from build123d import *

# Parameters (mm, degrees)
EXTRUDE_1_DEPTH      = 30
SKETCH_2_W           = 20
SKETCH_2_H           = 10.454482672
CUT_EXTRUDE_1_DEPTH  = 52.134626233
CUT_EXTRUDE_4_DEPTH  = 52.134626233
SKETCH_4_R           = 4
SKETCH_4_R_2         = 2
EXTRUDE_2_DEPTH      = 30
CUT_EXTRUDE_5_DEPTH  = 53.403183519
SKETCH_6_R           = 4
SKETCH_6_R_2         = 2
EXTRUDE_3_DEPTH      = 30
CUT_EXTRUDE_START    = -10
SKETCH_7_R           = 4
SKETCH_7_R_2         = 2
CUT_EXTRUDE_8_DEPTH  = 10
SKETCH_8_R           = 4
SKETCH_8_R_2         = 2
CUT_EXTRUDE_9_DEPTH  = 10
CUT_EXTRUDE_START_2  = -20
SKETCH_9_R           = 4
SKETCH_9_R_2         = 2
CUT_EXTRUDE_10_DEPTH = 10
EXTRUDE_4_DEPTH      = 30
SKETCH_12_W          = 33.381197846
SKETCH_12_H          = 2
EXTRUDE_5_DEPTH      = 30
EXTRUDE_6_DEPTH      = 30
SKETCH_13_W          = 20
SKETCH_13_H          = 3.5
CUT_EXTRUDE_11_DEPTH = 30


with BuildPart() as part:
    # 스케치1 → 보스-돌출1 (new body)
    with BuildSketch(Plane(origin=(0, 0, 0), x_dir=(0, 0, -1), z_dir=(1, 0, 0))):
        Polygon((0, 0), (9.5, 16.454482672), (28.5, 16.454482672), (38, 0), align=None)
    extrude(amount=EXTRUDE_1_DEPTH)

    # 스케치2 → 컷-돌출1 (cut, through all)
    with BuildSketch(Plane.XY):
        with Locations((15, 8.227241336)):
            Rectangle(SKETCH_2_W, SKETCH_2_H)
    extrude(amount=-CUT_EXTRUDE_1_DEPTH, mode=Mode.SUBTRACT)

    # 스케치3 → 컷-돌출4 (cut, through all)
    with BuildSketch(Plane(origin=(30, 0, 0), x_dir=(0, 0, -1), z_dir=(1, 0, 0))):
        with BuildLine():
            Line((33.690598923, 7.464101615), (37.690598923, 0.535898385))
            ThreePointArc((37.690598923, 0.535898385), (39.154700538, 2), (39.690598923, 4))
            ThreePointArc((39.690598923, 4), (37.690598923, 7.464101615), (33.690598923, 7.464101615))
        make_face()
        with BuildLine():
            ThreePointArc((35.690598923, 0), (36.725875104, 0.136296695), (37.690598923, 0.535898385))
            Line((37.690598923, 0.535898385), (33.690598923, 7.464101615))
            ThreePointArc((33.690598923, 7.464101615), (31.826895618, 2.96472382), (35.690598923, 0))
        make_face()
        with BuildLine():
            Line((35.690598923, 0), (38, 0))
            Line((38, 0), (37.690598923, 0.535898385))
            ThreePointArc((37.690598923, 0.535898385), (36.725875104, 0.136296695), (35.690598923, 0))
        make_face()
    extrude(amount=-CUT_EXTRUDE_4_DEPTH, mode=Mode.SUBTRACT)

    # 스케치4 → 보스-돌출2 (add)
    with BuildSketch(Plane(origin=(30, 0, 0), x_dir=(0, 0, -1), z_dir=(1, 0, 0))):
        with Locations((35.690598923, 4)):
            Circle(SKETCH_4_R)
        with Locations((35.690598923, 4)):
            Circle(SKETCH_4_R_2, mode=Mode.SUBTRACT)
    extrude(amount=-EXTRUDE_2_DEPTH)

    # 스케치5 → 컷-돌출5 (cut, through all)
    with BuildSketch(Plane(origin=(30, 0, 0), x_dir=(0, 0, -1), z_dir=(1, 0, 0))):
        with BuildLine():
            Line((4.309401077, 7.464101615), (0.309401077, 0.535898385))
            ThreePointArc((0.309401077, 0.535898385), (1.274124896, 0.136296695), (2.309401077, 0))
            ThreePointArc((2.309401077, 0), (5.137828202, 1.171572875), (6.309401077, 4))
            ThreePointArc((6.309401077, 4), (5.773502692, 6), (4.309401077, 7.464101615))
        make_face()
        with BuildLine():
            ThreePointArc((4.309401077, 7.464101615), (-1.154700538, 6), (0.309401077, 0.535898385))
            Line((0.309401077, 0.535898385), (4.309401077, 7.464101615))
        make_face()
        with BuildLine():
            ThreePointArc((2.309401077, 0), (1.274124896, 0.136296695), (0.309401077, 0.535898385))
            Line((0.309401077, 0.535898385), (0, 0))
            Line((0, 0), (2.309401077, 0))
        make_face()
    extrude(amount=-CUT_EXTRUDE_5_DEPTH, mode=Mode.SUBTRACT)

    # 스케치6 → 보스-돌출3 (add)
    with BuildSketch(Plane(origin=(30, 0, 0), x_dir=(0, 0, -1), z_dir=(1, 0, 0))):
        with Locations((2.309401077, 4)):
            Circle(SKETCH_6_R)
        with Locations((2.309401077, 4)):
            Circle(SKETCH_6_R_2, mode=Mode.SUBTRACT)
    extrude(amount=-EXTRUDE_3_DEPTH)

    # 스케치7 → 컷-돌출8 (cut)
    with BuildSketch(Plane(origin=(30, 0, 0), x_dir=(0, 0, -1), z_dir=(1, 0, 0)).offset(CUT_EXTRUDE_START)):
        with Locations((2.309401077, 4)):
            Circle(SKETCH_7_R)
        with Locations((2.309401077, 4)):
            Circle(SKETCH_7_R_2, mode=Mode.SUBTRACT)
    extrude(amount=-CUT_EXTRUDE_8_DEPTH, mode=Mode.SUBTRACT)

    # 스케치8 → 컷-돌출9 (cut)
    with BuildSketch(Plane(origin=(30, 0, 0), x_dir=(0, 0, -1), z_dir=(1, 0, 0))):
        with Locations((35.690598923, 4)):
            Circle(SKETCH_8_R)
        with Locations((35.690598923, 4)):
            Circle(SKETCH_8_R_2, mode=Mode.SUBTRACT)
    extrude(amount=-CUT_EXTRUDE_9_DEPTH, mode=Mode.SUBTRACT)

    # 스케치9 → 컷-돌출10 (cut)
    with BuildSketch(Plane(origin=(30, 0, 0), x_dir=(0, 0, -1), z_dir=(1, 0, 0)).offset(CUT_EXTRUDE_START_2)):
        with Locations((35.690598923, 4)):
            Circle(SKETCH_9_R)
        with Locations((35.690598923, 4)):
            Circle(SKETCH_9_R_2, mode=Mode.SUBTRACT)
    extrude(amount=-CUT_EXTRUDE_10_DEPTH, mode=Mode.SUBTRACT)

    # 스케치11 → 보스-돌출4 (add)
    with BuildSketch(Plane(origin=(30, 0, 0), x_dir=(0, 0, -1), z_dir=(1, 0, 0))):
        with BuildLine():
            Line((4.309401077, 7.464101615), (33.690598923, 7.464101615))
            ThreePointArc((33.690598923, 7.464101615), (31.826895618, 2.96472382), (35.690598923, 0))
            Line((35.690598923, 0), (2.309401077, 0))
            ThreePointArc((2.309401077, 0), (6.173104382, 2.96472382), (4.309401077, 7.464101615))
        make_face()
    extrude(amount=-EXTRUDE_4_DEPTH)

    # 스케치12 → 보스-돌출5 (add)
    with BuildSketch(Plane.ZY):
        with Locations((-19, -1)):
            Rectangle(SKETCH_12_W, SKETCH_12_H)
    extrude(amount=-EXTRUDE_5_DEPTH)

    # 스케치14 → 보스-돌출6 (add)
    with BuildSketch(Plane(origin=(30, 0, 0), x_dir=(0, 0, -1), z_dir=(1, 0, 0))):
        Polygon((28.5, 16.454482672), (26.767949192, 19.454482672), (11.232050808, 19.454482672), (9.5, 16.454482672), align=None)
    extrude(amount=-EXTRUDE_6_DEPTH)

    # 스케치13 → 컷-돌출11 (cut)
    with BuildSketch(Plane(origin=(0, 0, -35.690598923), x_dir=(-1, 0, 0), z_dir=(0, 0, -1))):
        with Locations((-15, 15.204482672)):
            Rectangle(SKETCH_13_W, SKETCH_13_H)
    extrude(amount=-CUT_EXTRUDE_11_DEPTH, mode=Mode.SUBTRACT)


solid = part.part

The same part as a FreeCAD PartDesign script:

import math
import FreeCAD as App
import Part
import Sketcher

V = App.Vector
Q = App.Units.Quantity

doc = App.newDocument("Part")
params = doc.addObject("Spreadsheet::Sheet", "Params")
for row, (alias, value) in enumerate([
    ("sketch1_height", "38 mm"),
    ("sketch1_height2", "19 mm"),
    ("pad1_length", "30 mm"),
    ("sketch2_width", "20 mm"),
    ("sketch3_radius", "4 mm"),
    ("sketch4_diameter", "8 mm"),
    ("sketch4_diameter2", "4 mm"),
    ("pad2_length", "30 mm"),
    ("sketch5_radius", "4 mm"),
    ("sketch6_diameter", "8 mm"),
    ("sketch6_diameter2", "4 mm"),
    ("pad3_length", "30 mm"),
    ("sketch7_diameter", "8 mm"),
    ("sketch7_diameter2", "4 mm"),
    ("pocket4_length", "10 mm"),
    ("sketch8_diameter", "8 mm"),
    ("sketch8_diameter2", "4 mm"),
    ("pocket5_length", "10 mm"),
    ("sketch9_diameter", "8 mm"),
    ("sketch9_diameter2", "4 mm"),
    ("pocket6_length", "10 mm"),
    ("sketch10_radius", "4 mm"),
    ("pad4_length", "30 mm"),
    ("sketch11_width", "2 mm"),
    ("pad5_length", "30 mm"),
    ("sketch12_height", "19 mm"),
    ("pad6_length", "30 mm"),
    ("sketch13_width", "20 mm"),
    ("sketch13_height", "3.5 mm"),
    ("pocket7_length", "30 mm"),
], start=1):
    params.set(f"A{row}", alias)
    params.set(f"B{row}", "=" + value)
    params.setAlias(f"B{row}", alias)

body = doc.addObject("PartDesign::Body", "Body")

# Sketch on YZ plane
sketch1 = body.newObject("Sketcher::SketchObject", "Sketch")
sketch1.AttachmentSupport = (doc.getObject("YZ_Plane"), [""])
sketch1.MapMode = "FlatFace"
sketch1.addGeometry(Part.LineSegment(V(16, -10, 0), V(0, 0, 0)), False)
sketch1.addGeometry(Part.LineSegment(V(0, 0, 0), V(0, -38, 0)), False)
sketch1.addGeometry(Part.LineSegment(V(0, -38, 0), V(16, -28, 0)), False)
sketch1.addGeometry(Part.LineSegment(V(16, -28, 0), V(16, -10, 0)), False)
sketch1.addConstraint(Sketcher.Constraint("Coincident", 0, 2, 1, 1))
sketch1.addConstraint(Sketcher.Constraint("Coincident", 1, 2, 2, 1))
sketch1.addConstraint(Sketcher.Constraint("Coincident", 2, 2, 3, 1))
sketch1.addConstraint(Sketcher.Constraint("Coincident", 3, 2, 0, 1))
sketch1.addConstraint(Sketcher.Constraint("Vertical", 1))
sketch1.addConstraint(Sketcher.Constraint("Vertical", 3))
sketch1.addConstraint(Sketcher.Constraint("Coincident", 0, 2, -1, 1))
sketch1.addConstraint(Sketcher.Constraint("Equal", 0, 2))
sketch1.addConstraint(Sketcher.Constraint("DistanceY", 1, 2, 1, 1, Q("38 mm")))
sketch1.addConstraint(Sketcher.Constraint("DistanceY", 3, 1, 3, 2, Q("19 mm")))
sketch1.addConstraint(Sketcher.Constraint("Angle", 0, Q("150 deg")))
sketch1.setExpression("Constraints[8]", "Params.sketch1_height")
sketch1.setExpression("Constraints[9]", "Params.sketch1_height2")
pad1 = body.newObject("PartDesign::Pad", "Pad")
pad1.Profile = sketch1
pad1.setExpression("Length", "Params.pad1_length")

# Sketch on XY plane
sketch2 = body.newObject("Sketcher::SketchObject", "Sketch001")
sketch2.AttachmentSupport = (doc.getObject("XY_Plane"), [""])
sketch2.MapMode = "FlatFace"
sketch2.addGeometry(Part.LineSegment(V(5, 13, 0), V(5, 3, 0)), False)
sketch2.addGeometry(Part.LineSegment(V(5, 3, 0), V(25, 3, 0)), False)
sketch2.addGeometry(Part.LineSegment(V(25, 3, 0), V(25, 13, 0)), False)
sketch2.addGeometry(Part.LineSegment(V(25, 13, 0), V(5, 13, 0)), False)
sketch2.addConstraint(Sketcher.Constraint("Coincident", 0, 2, 1, 1))
sketch2.addConstraint(Sketcher.Constraint("Coincident", 1, 2, 2, 1))
sketch2.addConstraint(Sketcher.Constraint("Coincident", 2, 2, 3, 1))
sketch2.addConstraint(Sketcher.Constraint("Coincident", 3, 2, 0, 1))
sketch2.addConstraint(Sketcher.Constraint("Vertical", 0))
sketch2.addConstraint(Sketcher.Constraint("Horizontal", 1))
sketch2.addConstraint(Sketcher.Constraint("Vertical", 2))
sketch2.addConstraint(Sketcher.Constraint("Horizontal", 3))
sketch2.addConstraint(Sketcher.Constraint("DistanceX", 1, 1, 1, 2, Q("20 mm")))
sketch2.addConstraint(Sketcher.Constraint("DistanceX", -1, 1, 0, 2, Q("5 mm")))
sketch2.addConstraint(Sketcher.Constraint("DistanceY", -1, 1, 0, 2, Q("3 mm")))
sketch2.addConstraint(Sketcher.Constraint("DistanceY", 0, 2, 0, 1, Q("10.454483 mm")))
sketch2.setExpression("Constraints[8]", "Params.sketch2_width")
pocket1 = body.newObject("PartDesign::Pocket", "Pocket")
pocket1.Profile = sketch2
pocket1.Type = "ThroughAll"

# Sketch on YZ plane
sketch3 = body.newObject("Sketcher::SketchObject", "Sketch002")
sketch3.AttachmentSupport = (doc.getObject("YZ_Plane"), [""])
sketch3.MapMode = "FlatFace"
sketch3.AttachmentOffset = App.Placement(V(0, 0, 30), App.Rotation())
sketch3.addGeometry(Part.ArcOfCircle(Part.Circle(V(4, -35.7, 0), V(0, 0, 1), 4), math.radians(-150), math.radians(-90)), False)
sketch3.addGeometry(Part.ArcOfCircle(Part.Circle(V(4, -35.7, 0), V(0, 0, 1), 4), math.radians(-90), math.radians(30)), False)
sketch3.addGeometry(Part.ArcOfCircle(Part.Circle(V(4, -35.7, 0), V(0, 0, 1), 4), math.radians(30), math.radians(180)), False)
sketch3.addGeometry(Part.LineSegment(V(0, -35.7, 0), V(0, -38, 0)), False)
sketch3.addGeometry(Part.LineSegment(V(0, -38, 0), V(0.5, -37.7, 0)), False)
sketch3.addConstraint(Sketcher.Constraint("Tangent", 0, 2, 1, 1))
sketch3.addConstraint(Sketcher.Constraint("Tangent", 1, 2, 2, 1))
sketch3.addConstraint(Sketcher.Constraint("Tangent", 2, 2, 3, 1))
sketch3.addConstraint(Sketcher.Constraint("Coincident", 3, 2, 4, 1))
sketch3.addConstraint(Sketcher.Constraint("Coincident", 4, 2, 0, 1))
sketch3.addConstraint(Sketcher.Constraint("Vertical", 3))
sketch3.addConstraint(Sketcher.Constraint("Coincident", 2, 3, 0, 3))
sketch3.addConstraint(Sketcher.Constraint("PointOnObject", 2, 2, -2))
sketch3.addConstraint(Sketcher.Constraint("Vertical", 2, 3, 0, 2))
sketch3.addConstraint(Sketcher.Constraint("Radius", 0, Q("4 mm")))
sketch3.addConstraint(Sketcher.Constraint("Angle", 4, Q("30 deg")))
sketch3.addConstraint(Sketcher.Constraint("DistanceY", 3, 2, -1, 1, Q("38 mm")))
sketch3.addConstraint(Sketcher.Constraint("DistanceY", 0, 3, 1, 2, Q("2 mm")))
sketch3.addConstraint(Sketcher.Constraint("DistanceY", 4, 2, 2, 2, Q("2 mm")))
sketch3.setExpression("Constraints[9]", "Params.sketch3_radius")
pocket2 = body.newObject("PartDesign::Pocket", "Pocket001")
pocket2.Profile = sketch3
pocket2.Type = "ThroughAll"

# Sketch on YZ plane
sketch4 = body.newObject("Sketcher::SketchObject", "Sketch003")
sketch4.AttachmentSupport = (doc.getObject("YZ_Plane"), [""])
sketch4.MapMode = "FlatFace"
sketch4.AttachmentOffset = App.Placement(V(0, 0, 30), App.Rotation())
sketch4.addGeometry(Part.Circle(V(4, -35.7, 0), V(0, 0, 1), 4), False)
sketch4.addGeometry(Part.Circle(V(4, -35.7, 0), V(0, 0, 1), 2), False)
sketch4.addConstraint(Sketcher.Constraint("Coincident", 1, 3, 0, 3))
sketch4.addConstraint(Sketcher.Constraint("Diameter", 0, Q("8 mm")))
sketch4.addConstraint(Sketcher.Constraint("Diameter", 1, Q("4 mm")))
sketch4.addConstraint(Sketcher.Constraint("DistanceX", -1, 1, 0, 3, Q("4 mm")))
sketch4.addConstraint(Sketcher.Constraint("DistanceY", 0, 3, -1, 1, Q("35.690599 mm")))
sketch4.setExpression("Constraints[1]", "Params.sketch4_diameter")
sketch4.setExpression("Constraints[2]", "Params.sketch4_diameter2")
pad2 = body.newObject("PartDesign::Pad", "Pad001")
pad2.Profile = sketch4
pad2.setExpression("Length", "Params.pad2_length")
pad2.Reversed = True

# Sketch on YZ plane
sketch5 = body.newObject("Sketcher::SketchObject", "Sketch004")
sketch5.AttachmentSupport = (doc.getObject("YZ_Plane"), [""])
sketch5.MapMode = "FlatFace"
sketch5.AttachmentOffset = App.Placement(V(0, 0, 30), App.Rotation())
sketch5.addGeometry(Part.ArcOfCircle(Part.Circle(V(4, -2.3, 0), V(0, 0, 1), 4), math.radians(180), math.radians(270)), False)
sketch5.addGeometry(Part.ArcOfCircle(Part.Circle(V(4, -2.3, 0), V(0, 0, 1), 4), math.radians(-90), math.radians(-30)), False)
sketch5.addGeometry(Part.ArcOfCircle(Part.Circle(V(4, -2.3, 0), V(0, 0, 1), 4), math.radians(-30), math.radians(150)), False)
sketch5.addGeometry(Part.LineSegment(V(0.5, -0.3, 0), V(0, 0, 0)), False)
sketch5.addGeometry(Part.LineSegment(V(0, 0, 0), V(0, -2.3, 0)), False)
sketch5.addConstraint(Sketcher.Constraint("Tangent", 0, 2, 1, 1))
sketch5.addConstraint(Sketcher.Constraint("Tangent", 1, 2, 2, 1))
sketch5.addConstraint(Sketcher.Constraint("Coincident", 2, 2, 3, 1))
sketch5.addConstraint(Sketcher.Constraint("Coincident", 3, 2, 4, 1))
sketch5.addConstraint(Sketcher.Constraint("Tangent", 4, 2, 0, 1))
sketch5.addConstraint(Sketcher.Constraint("Vertical", 4))
sketch5.addConstraint(Sketcher.Constraint("Coincident", 3, 2, -1, 1))
sketch5.addConstraint(Sketcher.Constraint("Coincident", 2, 3, 0, 3))
sketch5.addConstraint(Sketcher.Constraint("Vertical", 2, 3, 0, 2))
sketch5.addConstraint(Sketcher.Constraint("Radius", 0, Q("4 mm")))
sketch5.addConstraint(Sketcher.Constraint("Angle", 3, Q("150 deg")))
sketch5.addConstraint(Sketcher.Constraint("DistanceY", 0, 2, 1, 2, Q("2 mm")))
sketch5.addConstraint(Sketcher.Constraint("DistanceY", 0, 3, 2, 2, Q("2 mm")))
sketch5.setExpression("Constraints[9]", "Params.sketch5_radius")
pocket3 = body.newObject("PartDesign::Pocket", "Pocket002")
pocket3.Profile = sketch5
pocket3.Type = "ThroughAll"

# Sketch on YZ plane
sketch6 = body.newObject("Sketcher::SketchObject", "Sketch005")
sketch6.AttachmentSupport = (doc.getObject("YZ_Plane"), [""])
sketch6.MapMode = "FlatFace"
sketch6.AttachmentOffset = App.Placement(V(0, 0, 30), App.Rotation())
sketch6.addGeometry(Part.Circle(V(4, -2.3, 0), V(0, 0, 1), 4), False)
sketch6.addGeometry(Part.Circle(V(4, -2.3, 0), V(0, 0, 1), 2), False)
sketch6.addConstraint(Sketcher.Constraint("Coincident", 1, 3, 0, 3))
sketch6.addConstraint(Sketcher.Constraint("Diameter", 0, Q("8 mm")))
sketch6.addConstraint(Sketcher.Constraint("Diameter", 1, Q("4 mm")))
sketch6.addConstraint(Sketcher.Constraint("DistanceX", -1, 1, 0, 3, Q("4 mm")))
sketch6.addConstraint(Sketcher.Constraint("DistanceY", 0, 3, -1, 1, Q("2.309401 mm")))
sketch6.setExpression("Constraints[1]", "Params.sketch6_diameter")
sketch6.setExpression("Constraints[2]", "Params.sketch6_diameter2")
pad3 = body.newObject("PartDesign::Pad", "Pad002")
pad3.Profile = sketch6
pad3.setExpression("Length", "Params.pad3_length")
pad3.Reversed = True

# Sketch on YZ plane
sketch7 = body.newObject("Sketcher::SketchObject", "Sketch006")
sketch7.AttachmentSupport = (doc.getObject("YZ_Plane"), [""])
sketch7.MapMode = "FlatFace"
sketch7.AttachmentOffset = App.Placement(V(0, 0, 20), App.Rotation())
sketch7.addGeometry(Part.Circle(V(4, -2.3, 0), V(0, 0, 1), 4), False)
sketch7.addGeometry(Part.Circle(V(4, -2.3, 0), V(0, 0, 1), 2), False)
sketch7.addConstraint(Sketcher.Constraint("Coincident", 1, 3, 0, 3))
sketch7.addConstraint(Sketcher.Constraint("Diameter", 0, Q("8 mm")))
sketch7.addConstraint(Sketcher.Constraint("Diameter", 1, Q("4 mm")))
sketch7.addConstraint(Sketcher.Constraint("DistanceX", -1, 1, 0, 3, Q("4 mm")))
sketch7.addConstraint(Sketcher.Constraint("DistanceY", 0, 3, -1, 1, Q("2.309401 mm")))
sketch7.setExpression("Constraints[1]", "Params.sketch7_diameter")
sketch7.setExpression("Constraints[2]", "Params.sketch7_diameter2")
pocket4 = body.newObject("PartDesign::Pocket", "Pocket003")
pocket4.Profile = sketch7
pocket4.setExpression("Length", "Params.pocket4_length")

# Sketch on YZ plane
sketch8 = body.newObject("Sketcher::SketchObject", "Sketch007")
sketch8.AttachmentSupport = (doc.getObject("YZ_Plane"), [""])
sketch8.MapMode = "FlatFace"
sketch8.AttachmentOffset = App.Placement(V(0, 0, 30), App.Rotation())
sketch8.addGeometry(Part.Circle(V(4, -35.7, 0), V(0, 0, 1), 4), False)
sketch8.addGeometry(Part.Circle(V(4, -35.7, 0), V(0, 0, 1), 2), False)
sketch8.addConstraint(Sketcher.Constraint("Coincident", 1, 3, 0, 3))
sketch8.addConstraint(Sketcher.Constraint("Diameter", 0, Q("8 mm")))
sketch8.addConstraint(Sketcher.Constraint("Diameter", 1, Q("4 mm")))
sketch8.addConstraint(Sketcher.Constraint("DistanceX", -1, 1, 0, 3, Q("4 mm")))
sketch8.addConstraint(Sketcher.Constraint("DistanceY", 0, 3, -1, 1, Q("35.690599 mm")))
sketch8.setExpression("Constraints[1]", "Params.sketch8_diameter")
sketch8.setExpression("Constraints[2]", "Params.sketch8_diameter2")
pocket5 = body.newObject("PartDesign::Pocket", "Pocket004")
pocket5.Profile = sketch8
pocket5.setExpression("Length", "Params.pocket5_length")

# Sketch on YZ plane
sketch9 = body.newObject("Sketcher::SketchObject", "Sketch008")
sketch9.AttachmentSupport = (doc.getObject("YZ_Plane"), [""])
sketch9.MapMode = "FlatFace"
sketch9.AttachmentOffset = App.Placement(V(0, 0, 10), App.Rotation())
sketch9.addGeometry(Part.Circle(V(4, -35.7, 0), V(0, 0, 1), 4), False)
sketch9.addGeometry(Part.Circle(V(4, -35.7, 0), V(0, 0, 1), 2), False)
sketch9.addConstraint(Sketcher.Constraint("Coincident", 1, 3, 0, 3))
sketch9.addConstraint(Sketcher.Constraint("Diameter", 0, Q("8 mm")))
sketch9.addConstraint(Sketcher.Constraint("Diameter", 1, Q("4 mm")))
sketch9.addConstraint(Sketcher.Constraint("DistanceX", -1, 1, 0, 3, Q("4 mm")))
sketch9.addConstraint(Sketcher.Constraint("DistanceY", 0, 3, -1, 1, Q("35.690599 mm")))
sketch9.setExpression("Constraints[1]", "Params.sketch9_diameter")
sketch9.setExpression("Constraints[2]", "Params.sketch9_diameter2")
pocket6 = body.newObject("PartDesign::Pocket", "Pocket005")
pocket6.Profile = sketch9
pocket6.setExpression("Length", "Params.pocket6_length")

# Sketch on YZ plane
sketch10 = body.newObject("Sketcher::SketchObject", "Sketch009")
sketch10.AttachmentSupport = (doc.getObject("YZ_Plane"), [""])
sketch10.MapMode = "FlatFace"
sketch10.AttachmentOffset = App.Placement(V(0, 0, 30), App.Rotation())
sketch10.addGeometry(Part.LineSegment(V(7.5, -33.7, 0), V(7.5, -4.3, 0)), False)
sketch10.addGeometry(Part.ArcOfCircle(Part.Circle(V(4, -2.3, 0), V(0, 0, 1), 4), math.radians(180), math.radians(330)), False)
sketch10.addGeometry(Part.LineSegment(V(0, -2.3, 0), V(0, -35.7, 0)), False)
sketch10.addGeometry(Part.ArcOfCircle(Part.Circle(V(4, -35.7, 0), V(0, 0, 1), 4), math.radians(30), math.radians(180)), False)
sketch10.addConstraint(Sketcher.Constraint("Coincident", 0, 2, 1, 2))
sketch10.addConstraint(Sketcher.Constraint("Tangent", 1, 1, 2, 1))
sketch10.addConstraint(Sketcher.Constraint("Tangent", 2, 2, 3, 2))
sketch10.addConstraint(Sketcher.Constraint("Coincident", 3, 1, 0, 1))
sketch10.addConstraint(Sketcher.Constraint("Vertical", 0))
sketch10.addConstraint(Sketcher.Constraint("Vertical", 2))
sketch10.addConstraint(Sketcher.Constraint("Equal", 1, 3))
sketch10.addConstraint(Sketcher.Constraint("PointOnObject", 1, 1, -2))
sketch10.addConstraint(Sketcher.Constraint("Radius", 1, Q("4 mm")))
sketch10.addConstraint(Sketcher.Constraint("DistanceY", 0, 2, 1, 3, Q("2 mm")))
sketch10.addConstraint(Sketcher.Constraint("DistanceY", 1, 3, -1, 1, Q("2.309401 mm")))
sketch10.addConstraint(Sketcher.Constraint("DistanceY", 3, 3, -1, 1, Q("35.690599 mm")))
sketch10.setExpression("Constraints[8]", "Params.sketch10_radius")
pad4 = body.newObject("PartDesign::Pad", "Pad003")
pad4.Profile = sketch10
pad4.setExpression("Length", "Params.pad4_length")
pad4.Reversed = True

# Sketch on YZ plane
sketch11 = body.newObject("Sketcher::SketchObject", "Sketch010")
sketch11.AttachmentSupport = (doc.getObject("YZ_Plane"), [""])
sketch11.MapMode = "FlatFace"
sketch11.addGeometry(Part.LineSegment(V(0, -35.7, 0), V(-2, -35.7, 0)), False)
sketch11.addGeometry(Part.LineSegment(V(-2, -35.7, 0), V(-2, -2.3, 0)), False)
sketch11.addGeometry(Part.LineSegment(V(-2, -2.3, 0), V(0, -2.3, 0)), False)
sketch11.addGeometry(Part.LineSegment(V(0, -2.3, 0), V(0, -35.7, 0)), False)
sketch11.addConstraint(Sketcher.Constraint("Coincident", 0, 2, 1, 1))
sketch11.addConstraint(Sketcher.Constraint("Coincident", 1, 2, 2, 1))
sketch11.addConstraint(Sketcher.Constraint("Coincident", 2, 2, 3, 1))
sketch11.addConstraint(Sketcher.Constraint("Coincident", 3, 2, 0, 1))
sketch11.addConstraint(Sketcher.Constraint("Horizontal", 0))
sketch11.addConstraint(Sketcher.Constraint("Vertical", 1))
sketch11.addConstraint(Sketcher.Constraint("Horizontal", 2))
sketch11.addConstraint(Sketcher.Constraint("Vertical", 3))
sketch11.addConstraint(Sketcher.Constraint("PointOnObject", 2, 2, -2))
sketch11.addConstraint(Sketcher.Constraint("DistanceX", 0, 2, 0, 1, Q("2 mm")))
sketch11.addConstraint(Sketcher.Constraint("DistanceY", 0, 2, -1, 1, Q("35.690599 mm")))
sketch11.addConstraint(Sketcher.Constraint("DistanceY", 1, 2, -1, 1, Q("2.309401 mm")))
sketch11.setExpression("Constraints[9]", "Params.sketch11_width")
pad5 = body.newObject("PartDesign::Pad", "Pad004")
pad5.Profile = sketch11
pad5.setExpression("Length", "Params.pad5_length")

# Sketch on YZ plane
sketch12 = body.newObject("Sketcher::SketchObject", "Sketch011")
sketch12.AttachmentSupport = (doc.getObject("YZ_Plane"), [""])
sketch12.MapMode = "FlatFace"
sketch12.AttachmentOffset = App.Placement(V(0, 0, 30), App.Rotation())
sketch12.addGeometry(Part.LineSegment(V(16.5, -28.5, 0), V(19.5, -26.8, 0)), False)
sketch12.addGeometry(Part.LineSegment(V(19.5, -26.8, 0), V(19.5, -11.2, 0)), False)
sketch12.addGeometry(Part.LineSegment(V(19.5, -11.2, 0), V(16.5, -9.5, 0)), False)
sketch12.addGeometry(Part.LineSegment(V(16.5, -9.5, 0), V(16.5, -28.5, 0)), False)
sketch12.addConstraint(Sketcher.Constraint("Coincident", 0, 2, 1, 1))
sketch12.addConstraint(Sketcher.Constraint("Coincident", 1, 2, 2, 1))
sketch12.addConstraint(Sketcher.Constraint("Coincident", 2, 2, 3, 1))
sketch12.addConstraint(Sketcher.Constraint("Coincident", 3, 2, 0, 1))
sketch12.addConstraint(Sketcher.Constraint("Vertical", 1))
sketch12.addConstraint(Sketcher.Constraint("Vertical", 3))
sketch12.addConstraint(Sketcher.Constraint("Equal", 0, 2))
sketch12.addConstraint(Sketcher.Constraint("DistanceY", 3, 2, 3, 1, Q("19 mm")))
sketch12.addConstraint(Sketcher.Constraint("Angle", 0, Q("30 deg")))
sketch12.addConstraint(Sketcher.Constraint("DistanceX", 2, 2, 1, 2, Q("3 mm")))
sketch12.addConstraint(Sketcher.Constraint("DistanceY", 2, 2, -1, 1, Q("9.5 mm")))
sketch12.addConstraint(Sketcher.Constraint("DistanceX", -1, 1, 0, 2, Q("19.454483 mm")))
sketch12.setExpression("Constraints[7]", "Params.sketch12_height")
pad6 = body.newObject("PartDesign::Pad", "Pad005")
pad6.Profile = sketch12
pad6.setExpression("Length", "Params.pad6_length")
pad6.Reversed = True

# Sketch on XY plane
sketch13 = body.newObject("Sketcher::SketchObject", "Sketch012")
sketch13.AttachmentSupport = (doc.getObject("XY_Plane"), [""])
sketch13.MapMode = "FlatFace"
sketch13.AttachmentOffset = App.Placement(V(0, 0, -35.690599), App.Rotation())
sketch13.addGeometry(Part.LineSegment(V(25, 17, 0), V(25, 13.5, 0)), False)
sketch13.addGeometry(Part.LineSegment(V(25, 13.5, 0), V(5, 13.5, 0)), False)
sketch13.addGeometry(Part.LineSegment(V(5, 13.5, 0), V(5, 17, 0)), False)
sketch13.addGeometry(Part.LineSegment(V(5, 17, 0), V(25, 17, 0)), False)
sketch13.addConstraint(Sketcher.Constraint("Coincident", 0, 2, 1, 1))
sketch13.addConstraint(Sketcher.Constraint("Coincident", 1, 2, 2, 1))
sketch13.addConstraint(Sketcher.Constraint("Coincident", 2, 2, 3, 1))
sketch13.addConstraint(Sketcher.Constraint("Coincident", 3, 2, 0, 1))
sketch13.addConstraint(Sketcher.Constraint("Vertical", 0))
sketch13.addConstraint(Sketcher.Constraint("Horizontal", 1))
sketch13.addConstraint(Sketcher.Constraint("Vertical", 2))
sketch13.addConstraint(Sketcher.Constraint("Horizontal", 3))
sketch13.addConstraint(Sketcher.Constraint("DistanceX", 1, 2, 1, 1, Q("20 mm")))
sketch13.addConstraint(Sketcher.Constraint("DistanceY", 0, 2, 0, 1, Q("3.5 mm")))
sketch13.addConstraint(Sketcher.Constraint("DistanceX", -1, 1, 0, 2, Q("25 mm")))
sketch13.addConstraint(Sketcher.Constraint("DistanceY", -1, 1, 0, 2, Q("13.454483 mm")))
sketch13.setExpression("Constraints[8]", "Params.sketch13_width")
sketch13.setExpression("Constraints[9]", "Params.sketch13_height")
pocket7 = body.newObject("PartDesign::Pocket", "Pocket006")
pocket7.Profile = sketch13
pocket7.setExpression("Length", "Params.pocket7_length")
pocket7.Reversed = True

doc.recompute()
